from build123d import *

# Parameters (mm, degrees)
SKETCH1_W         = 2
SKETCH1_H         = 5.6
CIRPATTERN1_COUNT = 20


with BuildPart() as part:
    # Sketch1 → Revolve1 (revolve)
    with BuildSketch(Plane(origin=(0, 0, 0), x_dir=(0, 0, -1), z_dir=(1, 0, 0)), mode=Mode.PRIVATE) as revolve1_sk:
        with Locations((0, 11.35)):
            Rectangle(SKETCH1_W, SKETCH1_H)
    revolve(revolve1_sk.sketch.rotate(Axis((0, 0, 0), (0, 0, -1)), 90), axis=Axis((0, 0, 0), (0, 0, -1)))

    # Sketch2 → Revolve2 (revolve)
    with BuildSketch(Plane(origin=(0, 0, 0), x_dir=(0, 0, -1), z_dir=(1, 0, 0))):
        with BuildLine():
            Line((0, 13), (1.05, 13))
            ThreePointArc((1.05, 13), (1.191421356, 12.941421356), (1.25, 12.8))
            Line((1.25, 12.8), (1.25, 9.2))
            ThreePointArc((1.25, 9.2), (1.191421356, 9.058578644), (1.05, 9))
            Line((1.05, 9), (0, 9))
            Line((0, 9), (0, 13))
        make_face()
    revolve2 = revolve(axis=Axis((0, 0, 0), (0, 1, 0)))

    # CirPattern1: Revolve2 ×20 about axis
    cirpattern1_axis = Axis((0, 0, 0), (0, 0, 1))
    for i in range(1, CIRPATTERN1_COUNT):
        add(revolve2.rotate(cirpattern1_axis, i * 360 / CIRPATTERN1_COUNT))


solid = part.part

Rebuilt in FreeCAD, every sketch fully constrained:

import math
import FreeCAD as App
import Part
import Sketcher
from FreeCAD import Vector
Q = App.Units.Quantity


def add_polygon(sketch, points):
    """Adds a closed chain of lines whose ends are joined by coincident constraints."""
    first, n = sketch.GeometryCount, len(points)
    for a, b in zip(points, points[1:] + points[:1]):
        sketch.addGeometry(Part.LineSegment(App.Vector(*a, 0), App.Vector(*b, 0)), False)
    for i in range(n):
        sketch.addConstraint(Sketcher.Constraint("Coincident", first + i, 2, first + (i + 1) % n, 1))

doc = App.newDocument("Part")
body = doc.addObject("PartDesign::Body", "Body")

# Sketch on YZ plane
sketch1 = body.newObject("Sketcher::SketchObject", "Sketch")
sketch1.AttachmentSupport = (doc.getObject("YZ_Plane"), [""])
sketch1.MapMode = "FlatFace"
add_polygon(sketch1, [(14.15, 1), (8.55, 1), (8.55, -1), (14.15, -1)])  # lines 0-3
sketch1.addConstraint(Sketcher.Constraint("Horizontal", 0))
sketch1.addConstraint(Sketcher.Constraint("Vertical", 1))
sketch1.addConstraint(Sketcher.Constraint("Horizontal", 2))
sketch1.addConstraint(Sketcher.Constraint("Vertical", 3))
sketch1.addConstraint(Sketcher.Constraint("DistanceY", 1, 2, 1, 1, Q("2 mm")))
sketch1.addConstraint(Sketcher.Constraint("DistanceX", 0, 2, 0, 1, Q("5.6 mm")))
sketch1.addConstraint(Sketcher.Constraint("DistanceY", -1, 1, 0, 2, Q("1 mm")))
sketch1.addConstraint(Sketcher.Constraint("DistanceX", -1, 1, 0, 2, Q("8.55 mm")))
revolution = body.newObject("PartDesign::Revolution", "Revolution")
revolution.Profile = sketch1
revolution.ReferenceAxis = (sketch1, ["V_Axis"])
revolution.Angle = 360

# Sketch on YZ plane
sketch2 = body.newObject("Sketcher::SketchObject", "Sketch001")
sketch2.AttachmentSupport = (doc.getObject("YZ_Plane"), [""])
sketch2.MapMode = "FlatFace"
sketch2.addGeometry(Part.LineSegment(Vector(13, -1.05, 0), Vector(13, 0, 0)), False)
sketch2.addGeometry(Part.LineSegment(Vector(13, 0, 0), Vector(9, 0, 0)), False)
sketch2.addGeometry(Part.LineSegment(Vector(9, 0, 0), Vector(9, -1.05, 0)), False)
sketch2.addGeometry(Part.ArcOfCircle(Part.Circle(Vector(9.2, -1.05, 0), Vector(0, 0, 1), 0.2), math.radians(-180), math.radians(-90)), False)
sketch2.addGeometry(Part.LineSegment(Vector(9.2, -1.25, 0), Vector(12.8, -1.25, 0)), False)
sketch2.addGeometry(Part.ArcOfCircle(Part.Circle(Vector(12.8, -1.05, 0), Vector(0, 0, 1), 0.2), math.radians(-90), math.radians(0)), False)
sketch2.addConstraint(Sketcher.Constraint("Coincident", 0, 2, 1, 1))
sketch2.addConstraint(Sketcher.Constraint("Coincident", 1, 2, 2, 1))
sketch2.addConstraint(Sketcher.Constraint("Tangent", 2, 2, 3, 1))
sketch2.addConstraint(Sketcher.Constraint("Tangent", 3, 2, 4, 1))
sketch2.addConstraint(Sketcher.Constraint("Tangent", 4, 2, 5, 1))
sketch2.addConstraint(Sketcher.Constraint("Tangent", 5, 2, 0, 1))
sketch2.addConstraint(Sketcher.Constraint("Vertical", 0))
sketch2.addConstraint(Sketcher.Constraint("Horizontal", 1))
sketch2.addConstraint(Sketcher.Constraint("Vertical", 2))
sketch2.addConstraint(Sketcher.Constraint("Horizontal", 4))
sketch2.addConstraint(Sketcher.Constraint("Equal", 3, 5))
sketch2.addConstraint(Sketcher.Constraint("PointOnObject", 0, 2, -1))
sketch2.addConstraint(Sketcher.Constraint("Radius", 3, Q("0.2 mm")))
sketch2.addConstraint(Sketcher.Constraint("DistanceX", 1, 2, 1, 1, Q("4 mm")))
sketch2.addConstraint(Sketcher.Constraint("DistanceX", -1, 1, 0, 2, Q("13 mm")))
sketch2.addConstraint(Sketcher.Constraint("DistanceY", 0, 1, 0, 2, Q("1.05 mm")))
revolution2 = body.newObject("PartDesign::Revolution", "Revolution001")
revolution2.Profile = sketch2
revolution2.ReferenceAxis = (sketch2, ["H_Axis"])
revolution2.Angle = 360
doc.recompute()

polarpattern = body.newObject("PartDesign::PolarPattern", "PolarPattern")
polarpattern.Originals = [revolution2]
polarpattern.Axis = (doc.getObject("Z_Axis"), [""])
polarpattern.Angle = 360
polarpattern.Occurrences = 20
body.Tip = polarpattern

doc.recompute()
